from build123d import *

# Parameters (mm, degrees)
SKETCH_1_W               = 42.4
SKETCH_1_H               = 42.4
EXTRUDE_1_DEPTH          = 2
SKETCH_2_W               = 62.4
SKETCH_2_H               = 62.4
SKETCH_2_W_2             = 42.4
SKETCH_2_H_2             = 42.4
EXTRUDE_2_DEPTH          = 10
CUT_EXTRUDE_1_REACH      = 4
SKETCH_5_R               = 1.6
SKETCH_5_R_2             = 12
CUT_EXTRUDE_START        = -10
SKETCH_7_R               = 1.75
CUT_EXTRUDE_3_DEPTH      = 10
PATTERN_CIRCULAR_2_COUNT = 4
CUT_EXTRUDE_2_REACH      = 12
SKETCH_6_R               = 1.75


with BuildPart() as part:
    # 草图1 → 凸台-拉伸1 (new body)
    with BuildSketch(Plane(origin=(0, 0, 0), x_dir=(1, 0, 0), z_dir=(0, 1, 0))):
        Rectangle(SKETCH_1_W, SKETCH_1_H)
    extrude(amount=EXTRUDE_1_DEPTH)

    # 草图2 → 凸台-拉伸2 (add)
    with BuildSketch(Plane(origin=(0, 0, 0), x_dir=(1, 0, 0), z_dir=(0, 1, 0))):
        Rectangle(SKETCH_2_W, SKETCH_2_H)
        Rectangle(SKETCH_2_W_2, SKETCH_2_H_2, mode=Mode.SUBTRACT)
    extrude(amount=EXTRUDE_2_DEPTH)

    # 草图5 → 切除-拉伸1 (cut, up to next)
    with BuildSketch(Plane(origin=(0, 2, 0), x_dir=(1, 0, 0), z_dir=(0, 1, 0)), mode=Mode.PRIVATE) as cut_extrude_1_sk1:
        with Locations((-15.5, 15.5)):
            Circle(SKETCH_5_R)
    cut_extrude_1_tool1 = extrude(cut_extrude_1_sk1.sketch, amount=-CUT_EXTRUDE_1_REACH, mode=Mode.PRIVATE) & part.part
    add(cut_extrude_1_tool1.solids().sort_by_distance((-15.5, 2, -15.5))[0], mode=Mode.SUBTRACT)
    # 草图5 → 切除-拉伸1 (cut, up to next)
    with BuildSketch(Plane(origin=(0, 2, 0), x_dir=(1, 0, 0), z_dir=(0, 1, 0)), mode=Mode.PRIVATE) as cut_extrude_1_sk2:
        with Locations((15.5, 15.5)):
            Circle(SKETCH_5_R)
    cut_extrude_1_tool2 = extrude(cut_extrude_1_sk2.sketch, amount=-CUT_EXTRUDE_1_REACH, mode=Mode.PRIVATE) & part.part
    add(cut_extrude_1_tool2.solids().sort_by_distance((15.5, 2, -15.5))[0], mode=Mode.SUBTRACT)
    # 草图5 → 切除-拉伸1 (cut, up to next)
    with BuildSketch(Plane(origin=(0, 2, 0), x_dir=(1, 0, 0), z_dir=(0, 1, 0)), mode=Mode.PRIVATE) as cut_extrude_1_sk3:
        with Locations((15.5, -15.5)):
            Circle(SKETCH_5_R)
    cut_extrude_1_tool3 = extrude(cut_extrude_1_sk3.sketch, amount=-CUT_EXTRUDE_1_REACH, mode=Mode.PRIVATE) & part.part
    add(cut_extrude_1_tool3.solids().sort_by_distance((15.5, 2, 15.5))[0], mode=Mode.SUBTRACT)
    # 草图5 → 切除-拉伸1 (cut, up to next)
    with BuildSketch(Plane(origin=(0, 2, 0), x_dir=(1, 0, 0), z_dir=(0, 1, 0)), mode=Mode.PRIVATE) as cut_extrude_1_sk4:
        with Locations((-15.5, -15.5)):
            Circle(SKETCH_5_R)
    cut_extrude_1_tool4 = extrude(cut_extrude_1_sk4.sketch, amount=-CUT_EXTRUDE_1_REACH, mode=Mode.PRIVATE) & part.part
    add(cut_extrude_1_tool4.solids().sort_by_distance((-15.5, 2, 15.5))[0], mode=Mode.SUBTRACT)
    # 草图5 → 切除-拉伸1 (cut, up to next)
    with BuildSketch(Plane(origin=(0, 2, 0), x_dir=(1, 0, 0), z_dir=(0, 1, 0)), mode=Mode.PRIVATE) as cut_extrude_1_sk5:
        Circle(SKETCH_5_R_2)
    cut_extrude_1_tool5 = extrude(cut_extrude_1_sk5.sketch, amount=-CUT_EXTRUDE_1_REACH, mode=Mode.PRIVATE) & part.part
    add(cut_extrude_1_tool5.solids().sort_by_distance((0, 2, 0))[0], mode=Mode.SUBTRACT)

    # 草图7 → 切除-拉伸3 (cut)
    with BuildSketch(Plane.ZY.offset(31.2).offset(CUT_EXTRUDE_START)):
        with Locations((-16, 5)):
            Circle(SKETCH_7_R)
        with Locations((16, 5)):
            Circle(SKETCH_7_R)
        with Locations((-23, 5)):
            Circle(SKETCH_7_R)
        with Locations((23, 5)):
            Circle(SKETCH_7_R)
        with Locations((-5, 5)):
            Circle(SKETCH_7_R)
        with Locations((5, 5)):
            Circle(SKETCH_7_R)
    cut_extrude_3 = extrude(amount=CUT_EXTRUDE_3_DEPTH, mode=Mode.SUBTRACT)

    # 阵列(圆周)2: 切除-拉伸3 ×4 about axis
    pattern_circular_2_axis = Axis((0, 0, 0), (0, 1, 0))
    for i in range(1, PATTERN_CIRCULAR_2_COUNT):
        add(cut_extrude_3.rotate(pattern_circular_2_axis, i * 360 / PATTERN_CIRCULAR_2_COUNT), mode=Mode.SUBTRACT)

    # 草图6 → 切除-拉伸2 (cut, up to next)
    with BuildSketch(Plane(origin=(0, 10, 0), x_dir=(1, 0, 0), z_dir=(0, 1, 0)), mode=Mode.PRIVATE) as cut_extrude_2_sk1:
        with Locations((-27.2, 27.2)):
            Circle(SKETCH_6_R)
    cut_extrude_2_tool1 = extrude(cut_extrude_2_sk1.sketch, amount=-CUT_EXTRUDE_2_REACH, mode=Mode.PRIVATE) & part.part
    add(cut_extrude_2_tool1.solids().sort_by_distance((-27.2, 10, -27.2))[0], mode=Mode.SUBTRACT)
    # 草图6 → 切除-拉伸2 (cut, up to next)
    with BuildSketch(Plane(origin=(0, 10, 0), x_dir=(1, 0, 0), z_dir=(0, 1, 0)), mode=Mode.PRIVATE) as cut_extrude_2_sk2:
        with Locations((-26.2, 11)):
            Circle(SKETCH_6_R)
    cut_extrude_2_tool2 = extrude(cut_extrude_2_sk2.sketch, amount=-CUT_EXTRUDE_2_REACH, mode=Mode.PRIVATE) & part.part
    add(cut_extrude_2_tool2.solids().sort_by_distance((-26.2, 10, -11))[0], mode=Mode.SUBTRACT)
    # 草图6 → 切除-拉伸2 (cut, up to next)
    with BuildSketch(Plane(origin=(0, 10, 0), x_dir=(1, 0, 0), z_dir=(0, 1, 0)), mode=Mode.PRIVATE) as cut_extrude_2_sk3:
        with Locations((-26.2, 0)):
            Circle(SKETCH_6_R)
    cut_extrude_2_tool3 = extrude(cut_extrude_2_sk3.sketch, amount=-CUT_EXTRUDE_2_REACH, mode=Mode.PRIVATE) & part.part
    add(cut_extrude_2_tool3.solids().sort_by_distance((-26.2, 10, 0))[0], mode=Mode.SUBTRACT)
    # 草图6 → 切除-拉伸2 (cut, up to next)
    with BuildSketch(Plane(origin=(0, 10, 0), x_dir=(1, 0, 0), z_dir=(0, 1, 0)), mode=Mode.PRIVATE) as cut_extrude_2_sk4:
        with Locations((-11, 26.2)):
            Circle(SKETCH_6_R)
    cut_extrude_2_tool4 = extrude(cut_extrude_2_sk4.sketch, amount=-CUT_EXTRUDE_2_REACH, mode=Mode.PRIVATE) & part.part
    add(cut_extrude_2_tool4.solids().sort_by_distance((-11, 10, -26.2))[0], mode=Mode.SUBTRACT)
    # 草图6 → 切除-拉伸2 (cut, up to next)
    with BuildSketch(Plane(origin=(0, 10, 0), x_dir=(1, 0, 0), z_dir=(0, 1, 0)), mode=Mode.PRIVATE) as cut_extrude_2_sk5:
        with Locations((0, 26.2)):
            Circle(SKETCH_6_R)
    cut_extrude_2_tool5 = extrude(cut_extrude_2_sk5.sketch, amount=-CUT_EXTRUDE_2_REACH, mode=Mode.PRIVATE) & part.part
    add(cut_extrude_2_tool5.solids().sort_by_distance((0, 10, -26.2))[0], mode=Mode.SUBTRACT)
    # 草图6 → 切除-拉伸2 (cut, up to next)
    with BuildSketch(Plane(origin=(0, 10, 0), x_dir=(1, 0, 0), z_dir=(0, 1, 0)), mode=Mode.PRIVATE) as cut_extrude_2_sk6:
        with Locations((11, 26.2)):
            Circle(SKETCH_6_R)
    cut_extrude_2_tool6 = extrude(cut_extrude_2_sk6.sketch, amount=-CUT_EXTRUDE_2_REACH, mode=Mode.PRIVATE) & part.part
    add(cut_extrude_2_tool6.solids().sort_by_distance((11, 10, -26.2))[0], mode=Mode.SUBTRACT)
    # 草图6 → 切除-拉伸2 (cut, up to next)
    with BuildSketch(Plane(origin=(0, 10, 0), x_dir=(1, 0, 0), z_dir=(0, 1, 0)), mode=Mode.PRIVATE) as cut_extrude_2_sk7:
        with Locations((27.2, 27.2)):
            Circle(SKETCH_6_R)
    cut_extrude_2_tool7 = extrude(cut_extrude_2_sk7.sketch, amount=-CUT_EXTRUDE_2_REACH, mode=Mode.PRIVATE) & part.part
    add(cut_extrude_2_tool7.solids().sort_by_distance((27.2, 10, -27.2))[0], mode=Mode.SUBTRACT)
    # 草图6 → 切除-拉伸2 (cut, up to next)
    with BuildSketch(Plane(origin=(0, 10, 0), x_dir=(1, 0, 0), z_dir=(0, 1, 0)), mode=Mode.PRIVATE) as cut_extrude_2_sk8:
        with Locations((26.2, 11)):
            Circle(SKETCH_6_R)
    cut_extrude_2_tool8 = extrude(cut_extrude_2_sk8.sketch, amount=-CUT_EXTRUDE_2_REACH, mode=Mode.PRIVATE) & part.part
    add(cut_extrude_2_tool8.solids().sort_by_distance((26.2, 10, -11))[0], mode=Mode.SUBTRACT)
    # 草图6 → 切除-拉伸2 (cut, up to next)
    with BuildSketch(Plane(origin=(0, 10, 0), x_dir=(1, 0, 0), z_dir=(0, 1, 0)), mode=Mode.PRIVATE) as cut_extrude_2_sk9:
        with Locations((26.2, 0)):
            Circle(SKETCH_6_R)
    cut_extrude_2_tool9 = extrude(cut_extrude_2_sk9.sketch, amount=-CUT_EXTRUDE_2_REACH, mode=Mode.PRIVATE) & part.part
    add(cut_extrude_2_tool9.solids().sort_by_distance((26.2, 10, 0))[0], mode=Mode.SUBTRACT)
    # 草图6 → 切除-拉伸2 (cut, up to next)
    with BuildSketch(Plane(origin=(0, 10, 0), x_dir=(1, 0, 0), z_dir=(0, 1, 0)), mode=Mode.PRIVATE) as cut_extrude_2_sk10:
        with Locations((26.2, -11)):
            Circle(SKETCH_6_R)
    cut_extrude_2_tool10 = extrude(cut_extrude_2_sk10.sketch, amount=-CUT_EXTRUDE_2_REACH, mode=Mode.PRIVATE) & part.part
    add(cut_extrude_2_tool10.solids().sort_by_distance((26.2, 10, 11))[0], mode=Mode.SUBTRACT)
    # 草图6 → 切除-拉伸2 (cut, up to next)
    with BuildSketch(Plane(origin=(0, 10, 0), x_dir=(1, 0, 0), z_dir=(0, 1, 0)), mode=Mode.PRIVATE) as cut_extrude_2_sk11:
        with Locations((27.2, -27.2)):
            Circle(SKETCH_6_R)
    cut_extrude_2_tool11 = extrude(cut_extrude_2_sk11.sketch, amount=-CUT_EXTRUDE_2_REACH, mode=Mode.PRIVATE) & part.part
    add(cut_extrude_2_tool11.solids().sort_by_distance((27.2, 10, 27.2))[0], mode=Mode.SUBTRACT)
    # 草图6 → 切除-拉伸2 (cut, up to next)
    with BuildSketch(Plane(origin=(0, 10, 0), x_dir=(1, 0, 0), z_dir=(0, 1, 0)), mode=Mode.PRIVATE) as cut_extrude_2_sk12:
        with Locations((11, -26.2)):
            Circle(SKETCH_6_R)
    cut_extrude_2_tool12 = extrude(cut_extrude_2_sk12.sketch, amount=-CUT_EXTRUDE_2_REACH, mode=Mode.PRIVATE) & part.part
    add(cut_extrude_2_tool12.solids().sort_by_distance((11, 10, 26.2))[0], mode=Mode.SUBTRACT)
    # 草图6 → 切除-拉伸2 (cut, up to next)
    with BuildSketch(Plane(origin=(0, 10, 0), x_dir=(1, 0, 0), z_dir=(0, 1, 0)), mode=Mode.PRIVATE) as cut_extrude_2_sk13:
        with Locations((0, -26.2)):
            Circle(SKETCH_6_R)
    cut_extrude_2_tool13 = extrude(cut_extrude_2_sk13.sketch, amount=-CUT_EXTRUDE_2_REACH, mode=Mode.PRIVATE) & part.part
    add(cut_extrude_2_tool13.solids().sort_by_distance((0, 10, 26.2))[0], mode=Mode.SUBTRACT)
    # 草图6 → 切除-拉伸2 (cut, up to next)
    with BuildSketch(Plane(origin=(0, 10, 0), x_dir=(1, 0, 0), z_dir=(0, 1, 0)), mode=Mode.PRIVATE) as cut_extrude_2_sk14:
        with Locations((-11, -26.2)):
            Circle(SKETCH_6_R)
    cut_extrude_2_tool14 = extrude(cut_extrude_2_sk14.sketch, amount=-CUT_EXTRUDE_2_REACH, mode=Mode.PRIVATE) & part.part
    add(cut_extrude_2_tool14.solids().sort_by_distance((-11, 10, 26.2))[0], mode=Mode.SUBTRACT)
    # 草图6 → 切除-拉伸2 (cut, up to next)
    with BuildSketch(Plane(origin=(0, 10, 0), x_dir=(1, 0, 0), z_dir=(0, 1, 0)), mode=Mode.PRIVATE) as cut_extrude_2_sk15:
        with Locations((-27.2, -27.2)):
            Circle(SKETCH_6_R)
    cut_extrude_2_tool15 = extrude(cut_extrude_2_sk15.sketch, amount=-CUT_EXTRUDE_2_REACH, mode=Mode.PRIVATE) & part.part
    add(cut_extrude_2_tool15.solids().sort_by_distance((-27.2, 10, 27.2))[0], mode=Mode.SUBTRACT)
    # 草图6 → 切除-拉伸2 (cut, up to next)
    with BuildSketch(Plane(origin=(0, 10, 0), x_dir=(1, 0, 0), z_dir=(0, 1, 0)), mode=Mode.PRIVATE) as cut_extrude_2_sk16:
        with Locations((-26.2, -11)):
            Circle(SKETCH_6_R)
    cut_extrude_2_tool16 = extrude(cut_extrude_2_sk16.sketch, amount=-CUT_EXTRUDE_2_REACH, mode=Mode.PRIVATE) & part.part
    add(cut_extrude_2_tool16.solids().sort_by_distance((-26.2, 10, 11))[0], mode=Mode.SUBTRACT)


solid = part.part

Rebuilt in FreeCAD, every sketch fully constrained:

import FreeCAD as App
import Part
import Sketcher
Q = App.Units.Quantity

doc = App.newDocument("Part")
body = doc.addObject("PartDesign::Body", "Body")

sketch1 = body.newObject("Sketcher::SketchObject", "Sketch")
sketch1.AttachmentSupport = (doc.getObject("XZ_Plane"), [""])
sketch1.MapMode = "FlatFace"
sketch1.addGeometry([
    Part.LineSegment(App.Vector(-21, -21, 0), App.Vector(-21, 21, 0)),
    Part.LineSegment(App.Vector(-21, 21, 0), App.Vector(21, 21, 0)),
    Part.LineSegment(App.Vector(21, 21, 0), App.Vector(21, -21, 0)),
    Part.LineSegment(App.Vector(21, -21, 0), App.Vector(-21, -21, 0)),
], False)
sketch1.addConstraint([
    Sketcher.Constraint("Coincident", 0, 2, 1, 1),
    Sketcher.Constraint("Coincident", 1, 2, 2, 1),
    Sketcher.Constraint("Coincident", 2, 2, 3, 1),
    Sketcher.Constraint("Coincident", 3, 2, 0, 1),
    Sketcher.Constraint("Vertical", 0),
    Sketcher.Constraint("Horizontal", 1),
    Sketcher.Constraint("Vertical", 2),
    Sketcher.Constraint("Horizontal", 3),
    Sketcher.Constraint("Symmetric", 0, 2, 2, 2, -1, 1),
    Sketcher.Constraint("Equal", 3, 0),
    Sketcher.Constraint("DistanceX", 1, 1, 1, 2, Q("42.4 mm")),
])
pad1 = body.newObject("PartDesign::Pad", "Pad")
pad1.Profile = sketch1
pad1.Length = 2
pad1.Reversed = True

sketch2 = body.newObject("Sketcher::SketchObject", "Sketch001")
sketch2.AttachmentSupport = (doc.getObject("XZ_Plane"), [""])
sketch2.MapMode = "FlatFace"
sketch2.addGeometry([
    Part.LineSegment(App.Vector(-31, -31, 0), App.Vector(-31, 31, 0)),
    Part.LineSegment(App.Vector(-31, 31, 0), App.Vector(31, 31, 0)),
    Part.LineSegment(App.Vector(31, 31, 0), App.Vector(31, -31, 0)),
    Part.LineSegment(App.Vector(31, -31, 0), App.Vector(-31, -31, 0)),
    Part.LineSegment(App.Vector(21, 21, 0), App.Vector(-21, 21, 0)),
    Part.LineSegment(App.Vector(-21, 21, 0), App.Vector(-21, -21, 0)),
    Part.LineSegment(App.Vector(-21, -21, 0), App.Vector(21, -21, 0)),
    Part.LineSegment(App.Vector(21, -21, 0), App.Vector(21, 21, 0)),
], False)
sketch2.addConstraint([
    Sketcher.Constraint("Coincident", 0, 2, 1, 1),
    Sketcher.Constraint("Coincident", 1, 2, 2, 1),
    Sketcher.Constraint("Coincident", 2, 2, 3, 1),
    Sketcher.Constraint("Coincident", 3, 2, 0, 1),
    Sketcher.Constraint("Coincident", 4, 2, 5, 1),
    Sketcher.Constraint("Coincident", 5, 2, 6, 1),
    Sketcher.Constraint("Coincident", 6, 2, 7, 1),
    Sketcher.Constraint("Coincident", 7, 2, 4, 1),
    Sketcher.Constraint("Vertical", 0),
    Sketcher.Constraint("Horizontal", 1),
    Sketcher.Constraint("Vertical", 2),
    Sketcher.Constraint("Horizontal", 3),
    Sketcher.Constraint("Horizontal", 4),
    Sketcher.Constraint("Vertical", 5),
    Sketcher.Constraint("Horizontal", 6),
    Sketcher.Constraint("Vertical", 7),
    Sketcher.Constraint("Symmetric", 0, 2, 2, 2, -1, 1),
    Sketcher.Constraint("Symmetric", 4, 2, 6, 2, -1, 1),
    Sketcher.Constraint("Equal", 3, 0),
    Sketcher.Constraint("Equal", 6, 5),
    Sketcher.Constraint("DistanceX", 1, 1, 1, 2, Q("62.4 mm")),
    Sketcher.Constraint("DistanceX", 4, 2, 4, 1, Q("42.4 mm")),
])
pad2 = body.newObject("PartDesign::Pad", "Pad001")
pad2.Profile = sketch2
pad2.Length = 10
pad2.Reversed = True

sketch3 = body.newObject("Sketcher::SketchObject", "Sketch002")
sketch3.AttachmentSupport = (doc.getObject("XZ_Plane"), [""])
sketch3.MapMode = "FlatFace"
sketch3.AttachmentOffset = App.Placement(App.Vector(0, 0, -2), App.Rotation())
sketch3.addGeometry(Part.Circle(App.Vector(-15.5, -15.5, 0), App.Vector(0, 0, 1), 1.6), False)
sketch3.addConstraint([
    Sketcher.Constraint("Diameter", 0, Q("3.2 mm")),
    Sketcher.Constraint("DistanceX", 0, 3, -1, 1, Q("15.5 mm")),
    Sketcher.Constraint("DistanceY", 0, 3, -1, 1, Q("15.5 mm")),
])
pocket1 = body.newObject("PartDesign::Pocket", "Pocket")
pocket1.Profile = sketch3
pocket1.Type = "UpToFirst"
pocket1.Reversed = True

sketch4 = body.newObject("Sketcher::SketchObject", "Sketch003")
sketch4.AttachmentSupport = (doc.getObject("XZ_Plane"), [""])
sketch4.MapMode = "FlatFace"
sketch4.AttachmentOffset = App.Placement(App.Vector(0, 0, -2), App.Rotation())
sketch4.addGeometry(Part.Circle(App.Vector(15.5, -15.5, 0), App.Vector(0, 0, 1), 1.6), False)
sketch4.addConstraint([
    Sketcher.Constraint("Diameter", 0, Q("3.2 mm")),
    Sketcher.Constraint("DistanceX", -1, 1, 0, 3, Q("15.5 mm")),
    Sketcher.Constraint("DistanceY", 0, 3, -1, 1, Q("15.5 mm")),
])
pocket2 = body.newObject("PartDesign::Pocket", "Pocket001")
pocket2.Profile = sketch4
pocket2.Type = "UpToFirst"
pocket2.Reversed = True

sketch5 = body.newObject("Sketcher::SketchObject", "Sketch004")
sketch5.AttachmentSupport = (doc.getObject("XZ_Plane"), [""])
sketch5.MapMode = "FlatFace"
sketch5.AttachmentOffset = App.Placement(App.Vector(0, 0, -2), App.Rotation())
sketch5.addGeometry(Part.Circle(App.Vector(15.5, 15.5, 0), App.Vector(0, 0, 1), 1.6), False)
sketch5.addConstraint([
    Sketcher.Constraint("Diameter", 0, Q("3.2 mm")),
    Sketcher.Constraint("DistanceX", -1, 1, 0, 3, Q("15.5 mm")),
    Sketcher.Constraint("DistanceY", -1, 1, 0, 3, Q("15.5 mm")),
])
pocket3 = body.newObject("PartDesign::Pocket", "Pocket002")
pocket3.Profile = sketch5
pocket3.Type = "UpToFirst"
pocket3.Reversed = True

sketch6 = body.newObject("Sketcher::SketchObject", "Sketch005")
sketch6.AttachmentSupport = (doc.getObject("XZ_Plane"), [""])
sketch6.MapMode = "FlatFace"
sketch6.AttachmentOffset = App.Placement(App.Vector(0, 0, -2), App.Rotation())
sketch6.addGeometry(Part.Circle(App.Vector(-15.5, 15.5, 0), App.Vector(0, 0, 1), 1.6), False)
sketch6.addConstraint([
    Sketcher.Constraint("Diameter", 0, Q("3.2 mm")),
    Sketcher.Constraint("DistanceX", 0, 3, -1, 1, Q("15.5 mm")),
    Sketcher.Constraint("DistanceY", -1, 1, 0, 3, Q("15.5 mm")),
])
pocket4 = body.newObject("PartDesign::Pocket", "Pocket003")
pocket4.Profile = sketch6
pocket4.Type = "UpToFirst"
pocket4.Reversed = True

sketch7 = body.newObject("Sketcher::SketchObject", "Sketch006")
sketch7.AttachmentSupport = (doc.getObject("XZ_Plane"), [""])
sketch7.MapMode = "FlatFace"
sketch7.AttachmentOffset = App.Placement(App.Vector(0, 0, -2), App.Rotation())
sketch7.addGeometry(Part.Circle(App.Vector(0, 0, 0), App.Vector(0, 0, 1), 12), False)
sketch7.addConstraint([
    Sketcher.Constraint("Coincident", 0, 3, -1, 1),
    Sketcher.Constraint("Diameter", 0, Q("24 mm")),
])
pocket5 = body.newObject("PartDesign::Pocket", "Pocket004")
pocket5.Profile = sketch7
pocket5.Type = "UpToFirst"
pocket5.Reversed = True

sketch8 = body.newObject("Sketcher::SketchObject", "Sketch007")
sketch8.AttachmentSupport = (doc.getObject("YZ_Plane"), [""])
sketch8.MapMode = "FlatFace"
sketch8.AttachmentOffset = App.Placement(App.Vector(0, 0, -21.2), App.Rotation())
sketch8.addGeometry([
    Part.Circle(App.Vector(5, -16, 0), App.Vector(0, 0, 1), 1.8),
    Part.Circle(App.Vector(5, 16, 0), App.Vector(0, 0, 1), 1.8),
    Part.Circle(App.Vector(5, -23, 0), App.Vector(0, 0, 1), 1.8),
    Part.Circle(App.Vector(5, 23, 0), App.Vector(0, 0, 1), 1.8),
    Part.Circle(App.Vector(5, -5, 0), App.Vector(0, 0, 1), 1.8),
    Part.Circle(App.Vector(5, 5, 0), App.Vector(0, 0, 1), 1.8),
], False)
sketch8.addConstraint([
    Sketcher.Constraint("Equal", 0, 1),
    Sketcher.Constraint("Equal", 1, 2),
    Sketcher.Constraint("Equal", 2, 3),
    Sketcher.Constraint("Equal", 3, 4),
    Sketcher.Constraint("Equal", 4, 5),
    Sketcher.Constraint("Symmetric", 0, 3, 1, 3, -1),
    Sketcher.Constraint("Symmetric", 2, 3, 3, 3, -1),
    Sketcher.Constraint("Symmetric", 4, 3, 5, 3, -1),
    Sketcher.Constraint("Vertical", 1, 3, 2, 3),
    Sketcher.Constraint("Vertical", 3, 3, 4, 3),
    Sketcher.Constraint("Diameter", 0, Q("3.5 mm")),
    Sketcher.Constraint("DistanceX", -1, 1, 0, 3, Q("5 mm")),
    Sketcher.Constraint("DistanceY", 0, 3, -1, 1, Q("16 mm")),
    Sketcher.Constraint("DistanceY", 2, 3, -1, 1, Q("23 mm")),
    Sketcher.Constraint("DistanceY", 4, 3, -1, 1, Q("5 mm")),
])
pocket6 = body.newObject("PartDesign::Pocket", "Pocket005")
pocket6.Profile = sketch8
pocket6.Length = 10
doc.recompute()

polarpattern = body.newObject("PartDesign::PolarPattern", "PolarPattern")
polarpattern.Originals = [pocket6]
polarpattern.Axis = (doc.getObject("Y_Axis"), [""])
polarpattern.Angle = 360
polarpattern.Occurrences = 4
body.Tip = polarpattern

sketch9 = body.newObject("Sketcher::SketchObject", "Sketch008")
sketch9.AttachmentSupport = (doc.getObject("XZ_Plane"), [""])
sketch9.MapMode = "FlatFace"
sketch9.AttachmentOffset = App.Placement(App.Vector(0, 0, -10), App.Rotation())
sketch9.addGeometry(Part.Circle(App.Vector(-27.2, -27.2, 0), App.Vector(0, 0, 1), 1.8), False)
sketch9.addConstraint([
    Sketcher.Constraint("Diameter", 0, Q("3.5 mm")),
    Sketcher.Constraint("DistanceX", 0, 3, -1, 1, Q("27.2 mm")),
    Sketcher.Constraint("DistanceY", 0, 3, -1, 1, Q("27.2 mm")),
])
pocket7 = body.newObject("PartDesign::Pocket", "Pocket006")
pocket7.Profile = sketch9
pocket7.Type = "UpToFirst"
pocket7.Reversed = True

sketch10 = body.newObject("Sketcher::SketchObject", "Sketch009")
sketch10.AttachmentSupport = (doc.getObject("XZ_Plane"), [""])
sketch10.MapMode = "FlatFace"
sketch10.AttachmentOffset = App.Placement(App.Vector(0, 0, -10), App.Rotation())
sketch10.addGeometry(Part.Circle(App.Vector(-26.2, -11, 0), App.Vector(0, 0, 1), 1.8), False)
sketch10.addConstraint([
    Sketcher.Constraint("Diameter", 0, Q("3.5 mm")),
    Sketcher.Constraint("DistanceY", 0, 3, -1, 1, Q("11 mm")),
    Sketcher.Constraint("DistanceX", 0, 3, -1, 1, Q("26.2 mm")),
])
pocket8 = body.newObject("PartDesign::Pocket", "Pocket007")
pocket8.Profile = sketch10
pocket8.Type = "UpToFirst"
pocket8.Reversed = True

sketch11 = body.newObject("Sketcher::SketchObject", "Sketch010")
sketch11.AttachmentSupport = (doc.getObject("XZ_Plane"), [""])
sketch11.MapMode = "FlatFace"
sketch11.AttachmentOffset = App.Placement(App.Vector(0, 0, -10), App.Rotation())
sketch11.addGeometry(Part.Circle(App.Vector(-26.2, 0, 0), App.Vector(0, 0, 1), 1.8), False)
sketch11.addConstraint([
    Sketcher.Constraint("PointOnObject", 0, 3, -1),
    Sketcher.Constraint("Diameter", 0, Q("3.5 mm")),
    Sketcher.Constraint("DistanceX", 0, 3, -1, 1, Q("26.2 mm")),
])
pocket9 = body.newObject("PartDesign::Pocket", "Pocket008")
pocket9.Profile = sketch11
pocket9.Type = "UpToFirst"
pocket9.Reversed = True

sketch12 = body.newObject("Sketcher::SketchObject", "Sketch011")
sketch12.AttachmentSupport = (doc.getObject("XZ_Plane"), [""])
sketch12.MapMode = "FlatFace"
sketch12.AttachmentOffset = App.Placement(App.Vector(0, 0, -10), App.Rotation())
sketch12.addGeometry(Part.Circle(App.Vector(-11, -26.2, 0), App.Vector(0, 0, 1), 1.8), False)
sketch12.addConstraint([
    Sketcher.Constraint("Diameter", 0, Q("3.5 mm")),
    Sketcher.Constraint("DistanceX", 0, 3, -1, 1, Q("11 mm")),
    Sketcher.Constraint("DistanceY", 0, 3, -1, 1, Q("26.2 mm")),
])
pocket10 = body.newObject("PartDesign::Pocket", "Pocket009")
pocket10.Profile = sketch12
pocket10.Type = "UpToFirst"
pocket10.Reversed = True

sketch13 = body.newObject("Sketcher::SketchObject", "Sketch012")
sketch13.AttachmentSupport = (doc.getObject("XZ_Plane"), [""])
sketch13.MapMode = "FlatFace"
sketch13.AttachmentOffset = App.Placement(App.Vector(0, 0, -10), App.Rotation())
sketch13.addGeometry(Part.Circle(App.Vector(0, -26.2, 0), App.Vector(0, 0, 1), 1.8), False)
sketch13.addConstraint([
    Sketcher.Constraint("PointOnObject", 0, 3, -2),
    Sketcher.Constraint("Diameter", 0, Q("3.5 mm")),
    Sketcher.Constraint("DistanceY", 0, 3, -1, 1, Q("26.2 mm")),
])
pocket11 = body.newObject("PartDesign::Pocket", "Pocket010")
pocket11.Profile = sketch13
pocket11.Type = "UpToFirst"
pocket11.Reversed = True

sketch14 = body.newObject("Sketcher::SketchObject", "Sketch013")
sketch14.AttachmentSupport = (doc.getObject("XZ_Plane"), [""])
sketch14.MapMode = "FlatFace"
sketch14.AttachmentOffset = App.Placement(App.Vector(0, 0, -10), App.Rotation())
sketch14.addGeometry(Part.Circle(App.Vector(11, -26.2, 0), App.Vector(0, 0, 1), 1.8), False)
sketch14.addConstraint([
    Sketcher.Constraint("Diameter", 0, Q("3.5 mm")),
    Sketcher.Constraint("DistanceX", -1, 1, 0, 3, Q("11 mm")),
    Sketcher.Constraint("DistanceY", 0, 3, -1, 1, Q("26.2 mm")),
])
pocket12 = body.newObject("PartDesign::Pocket", "Pocket011")
pocket12.Profile = sketch14
pocket12.Type = "UpToFirst"
pocket12.Reversed = True

sketch15 = body.newObject("Sketcher::SketchObject", "Sketch014")
sketch15.AttachmentSupport = (doc.getObject("XZ_Plane"), [""])
sketch15.MapMode = "FlatFace"
sketch15.AttachmentOffset = App.Placement(App.Vector(0, 0, -10), App.Rotation())
sketch15.addGeometry(Part.Circle(App.Vector(27.2, -27.2, 0), App.Vector(0, 0, 1), 1.8), False)
sketch15.addConstraint([
    Sketcher.Constraint("Diameter", 0, Q("3.5 mm")),
    Sketcher.Constraint("DistanceX", -1, 1, 0, 3, Q("27.2 mm")),
    Sketcher.Constraint("DistanceY", 0, 3, -1, 1, Q("27.2 mm")),
])
pocket13 = body.newObject("PartDesign::Pocket", "Pocket012")
pocket13.Profile = sketch15
pocket13.Type = "UpToFirst"
pocket13.Reversed = True

sketch16 = body.newObject("Sketcher::SketchObject", "Sketch015")
sketch16.AttachmentSupport = (doc.getObject("XZ_Plane"), [""])
sketch16.MapMode = "FlatFace"
sketch16.AttachmentOffset = App.Placement(App.Vector(0, 0, -10), App.Rotation())
sketch16.addGeometry(Part.Circle(App.Vector(26.2, -11, 0), App.Vector(0, 0, 1), 1.8), False)
sketch16.addConstraint([
    Sketcher.Constraint("Diameter", 0, Q("3.5 mm")),
    Sketcher.Constraint("DistanceY", 0, 3, -1, 1, Q("11 mm")),
    Sketcher.Constraint("DistanceX", -1, 1, 0, 3, Q("26.2 mm")),
])
pocket14 = body.newObject("PartDesign::Pocket", "Pocket013")
pocket14.Profile = sketch16
pocket14.Type = "UpToFirst"
pocket14.Reversed = True

sketch17 = body.newObject("Sketcher::SketchObject", "Sketch016")
sketch17.AttachmentSupport = (doc.getObject("XZ_Plane"), [""])
sketch17.MapMode = "FlatFace"
sketch17.AttachmentOffset = App.Placement(App.Vector(0, 0, -10), App.Rotation())
sketch17.addGeometry(Part.Circle(App.Vector(26.2, 0, 0), App.Vector(0, 0, 1), 1.8), False)
sketch17.addConstraint([
    Sketcher.Constraint("PointOnObject", 0, 3, -1),
    Sketcher.Constraint("Diameter", 0, Q("3.5 mm")),
    Sketcher.Constraint("DistanceX", -1, 1, 0, 3, Q("26.2 mm")),
])
pocket15 = body.newObject("PartDesign::Pocket", "Pocket014")
pocket15.Profile = sketch17
pocket15.Type = "UpToFirst"
pocket15.Reversed = True

sketch18 = body.newObject("Sketcher::SketchObject", "Sketch017")
sketch18.AttachmentSupport = (doc.getObject("XZ_Plane"), [""])
sketch18.MapMode = "FlatFace"
sketch18.AttachmentOffset = App.Placement(App.Vector(0, 0, -10), App.Rotation())
sketch18.addGeometry(Part.Circle(App.Vector(26.2, 11, 0), App.Vector(0, 0, 1), 1.8), False)
sketch18.addConstraint([
    Sketcher.Constraint("Diameter", 0, Q("3.5 mm")),
    Sketcher.Constraint("DistanceY", -1, 1, 0, 3, Q("11 mm")),
    Sketcher.Constraint("DistanceX", -1, 1, 0, 3, Q("26.2 mm")),
])
pocket16 = body.newObject("PartDesign::Pocket", "Pocket015")
pocket16.Profile = sketch18
pocket16.Type = "UpToFirst"
pocket16.Reversed = True

sketch19 = body.newObject("Sketcher::SketchObject", "Sketch018")
sketch19.AttachmentSupport = (doc.getObject("XZ_Plane"), [""])
sketch19.MapMode = "FlatFace"
sketch19.AttachmentOffset = App.Placement(App.Vector(0, 0, -10), App.Rotation())
sketch19.addGeometry(Part.Circle(App.Vector(27.2, 27.2, 0), App.Vector(0, 0, 1), 1.8), False)
sketch19.addConstraint([
    Sketcher.Constraint("Diameter", 0, Q("3.5 mm")),
    Sketcher.Constraint("DistanceX", -1, 1, 0, 3, Q("27.2 mm")),
    Sketcher.Constraint("DistanceY", -1, 1, 0, 3, Q("27.2 mm")),
])
pocket17 = body.newObject("PartDesign::Pocket", "Pocket016")
pocket17.Profile = sketch19
pocket17.Type = "UpToFirst"
pocket17.Reversed = True

sketch20 = body.newObject("Sketcher::SketchObject", "Sketch019")
sketch20.AttachmentSupport = (doc.getObject("XZ_Plane"), [""])
sketch20.MapMode = "FlatFace"
sketch20.AttachmentOffset = App.Placement(App.Vector(0, 0, -10), App.Rotation())
sketch20.addGeometry(Part.Circle(App.Vector(11, 26.2, 0), App.Vector(0, 0, 1), 1.8), False)
sketch20.addConstraint([
    Sketcher.Constraint("Diameter", 0, Q("3.5 mm")),
    Sketcher.Constraint("DistanceX", -1, 1, 0, 3, Q("11 mm")),
    Sketcher.Constraint("DistanceY", -1, 1, 0, 3, Q("26.2 mm")),
])
pocket18 = body.newObject("PartDesign::Pocket", "Pocket017")
pocket18.Profile = sketch20
pocket18.Type = "UpToFirst"
pocket18.Reversed = True

sketch21 = body.newObject("Sketcher::SketchObject", "Sketch020")
sketch21.AttachmentSupport = (doc.getObject("XZ_Plane"), [""])
sketch21.MapMode = "FlatFace"
sketch21.AttachmentOffset = App.Placement(App.Vector(0, 0, -10), App.Rotation())
sketch21.addGeometry(Part.Circle(App.Vector(0, 26.2, 0), App.Vector(0, 0, 1), 1.8), False)
sketch21.addConstraint([
    Sketcher.Constraint("PointOnObject", 0, 3, -2),
    Sketcher.Constraint("Diameter", 0, Q("3.5 mm")),
    Sketcher.Constraint("DistanceY", -1, 1, 0, 3, Q("26.2 mm")),
])
pocket19 = body.newObject("PartDesign::Pocket", "Pocket018")
pocket19.Profile = sketch21
pocket19.Type = "UpToFirst"
pocket19.Reversed = True

sketch22 = body.newObject("Sketcher::SketchObject", "Sketch021")
sketch22.AttachmentSupport = (doc.getObject("XZ_Plane"), [""])
sketch22.MapMode = "FlatFace"
sketch22.AttachmentOffset = App.Placement(App.Vector(0, 0, -10), App.Rotation())
sketch22.addGeometry(Part.Circle(App.Vector(-11, 26.2, 0), App.Vector(0, 0, 1), 1.8), False)
sketch22.addConstraint([
    Sketcher.Constraint("Diameter", 0, Q("3.5 mm")),
    Sketcher.Constraint("DistanceX", 0, 3, -1, 1, Q("11 mm")),
    Sketcher.Constraint("DistanceY", -1, 1, 0, 3, Q("26.2 mm")),
])
pocket20 = body.newObject("PartDesign::Pocket", "Pocket019")
pocket20.Profile = sketch22
pocket20.Type = "UpToFirst"
pocket20.Reversed = True

sketch23 = body.newObject("Sketcher::SketchObject", "Sketch022")
sketch23.AttachmentSupport = (doc.getObject("XZ_Plane"), [""])
sketch23.MapMode = "FlatFace"
sketch23.AttachmentOffset = App.Placement(App.Vector(0, 0, -10), App.Rotation())
sketch23.addGeometry(Part.Circle(App.Vector(-27.2, 27.2, 0), App.Vector(0, 0, 1), 1.8), False)
sketch23.addConstraint([
    Sketcher.Constraint("Diameter", 0, Q("3.5 mm")),
    Sketcher.Constraint("DistanceX", 0, 3, -1, 1, Q("27.2 mm")),
    Sketcher.Constraint("DistanceY", -1, 1, 0, 3, Q("27.2 mm")),
])
pocket21 = body.newObject("PartDesign::Pocket", "Pocket020")
pocket21.Profile = sketch23
pocket21.Type = "UpToFirst"
pocket21.Reversed = True

sketch24 = body.newObject("Sketcher::SketchObject", "Sketch023")
sketch24.AttachmentSupport = (doc.getObject("XZ_Plane"), [""])
sketch24.MapMode = "FlatFace"
sketch24.AttachmentOffset = App.Placement(App.Vector(0, 0, -10), App.Rotation())
sketch24.addGeometry(Part.Circle(App.Vector(-26.2, 11, 0), App.Vector(0, 0, 1), 1.8), False)
sketch24.addConstraint([
    Sketcher.Constraint("Diameter", 0, Q("3.5 mm")),
    Sketcher.Constraint("DistanceY", -1, 1, 0, 3, Q("11 mm")),
    Sketcher.Constraint("DistanceX", 0, 3, -1, 1, Q("26.2 mm")),
])
pocket22 = body.newObject("PartDesign::Pocket", "Pocket021")
pocket22.Profile = sketch24
pocket22.Type = "UpToFirst"
pocket22.Reversed = True

doc.recompute()
